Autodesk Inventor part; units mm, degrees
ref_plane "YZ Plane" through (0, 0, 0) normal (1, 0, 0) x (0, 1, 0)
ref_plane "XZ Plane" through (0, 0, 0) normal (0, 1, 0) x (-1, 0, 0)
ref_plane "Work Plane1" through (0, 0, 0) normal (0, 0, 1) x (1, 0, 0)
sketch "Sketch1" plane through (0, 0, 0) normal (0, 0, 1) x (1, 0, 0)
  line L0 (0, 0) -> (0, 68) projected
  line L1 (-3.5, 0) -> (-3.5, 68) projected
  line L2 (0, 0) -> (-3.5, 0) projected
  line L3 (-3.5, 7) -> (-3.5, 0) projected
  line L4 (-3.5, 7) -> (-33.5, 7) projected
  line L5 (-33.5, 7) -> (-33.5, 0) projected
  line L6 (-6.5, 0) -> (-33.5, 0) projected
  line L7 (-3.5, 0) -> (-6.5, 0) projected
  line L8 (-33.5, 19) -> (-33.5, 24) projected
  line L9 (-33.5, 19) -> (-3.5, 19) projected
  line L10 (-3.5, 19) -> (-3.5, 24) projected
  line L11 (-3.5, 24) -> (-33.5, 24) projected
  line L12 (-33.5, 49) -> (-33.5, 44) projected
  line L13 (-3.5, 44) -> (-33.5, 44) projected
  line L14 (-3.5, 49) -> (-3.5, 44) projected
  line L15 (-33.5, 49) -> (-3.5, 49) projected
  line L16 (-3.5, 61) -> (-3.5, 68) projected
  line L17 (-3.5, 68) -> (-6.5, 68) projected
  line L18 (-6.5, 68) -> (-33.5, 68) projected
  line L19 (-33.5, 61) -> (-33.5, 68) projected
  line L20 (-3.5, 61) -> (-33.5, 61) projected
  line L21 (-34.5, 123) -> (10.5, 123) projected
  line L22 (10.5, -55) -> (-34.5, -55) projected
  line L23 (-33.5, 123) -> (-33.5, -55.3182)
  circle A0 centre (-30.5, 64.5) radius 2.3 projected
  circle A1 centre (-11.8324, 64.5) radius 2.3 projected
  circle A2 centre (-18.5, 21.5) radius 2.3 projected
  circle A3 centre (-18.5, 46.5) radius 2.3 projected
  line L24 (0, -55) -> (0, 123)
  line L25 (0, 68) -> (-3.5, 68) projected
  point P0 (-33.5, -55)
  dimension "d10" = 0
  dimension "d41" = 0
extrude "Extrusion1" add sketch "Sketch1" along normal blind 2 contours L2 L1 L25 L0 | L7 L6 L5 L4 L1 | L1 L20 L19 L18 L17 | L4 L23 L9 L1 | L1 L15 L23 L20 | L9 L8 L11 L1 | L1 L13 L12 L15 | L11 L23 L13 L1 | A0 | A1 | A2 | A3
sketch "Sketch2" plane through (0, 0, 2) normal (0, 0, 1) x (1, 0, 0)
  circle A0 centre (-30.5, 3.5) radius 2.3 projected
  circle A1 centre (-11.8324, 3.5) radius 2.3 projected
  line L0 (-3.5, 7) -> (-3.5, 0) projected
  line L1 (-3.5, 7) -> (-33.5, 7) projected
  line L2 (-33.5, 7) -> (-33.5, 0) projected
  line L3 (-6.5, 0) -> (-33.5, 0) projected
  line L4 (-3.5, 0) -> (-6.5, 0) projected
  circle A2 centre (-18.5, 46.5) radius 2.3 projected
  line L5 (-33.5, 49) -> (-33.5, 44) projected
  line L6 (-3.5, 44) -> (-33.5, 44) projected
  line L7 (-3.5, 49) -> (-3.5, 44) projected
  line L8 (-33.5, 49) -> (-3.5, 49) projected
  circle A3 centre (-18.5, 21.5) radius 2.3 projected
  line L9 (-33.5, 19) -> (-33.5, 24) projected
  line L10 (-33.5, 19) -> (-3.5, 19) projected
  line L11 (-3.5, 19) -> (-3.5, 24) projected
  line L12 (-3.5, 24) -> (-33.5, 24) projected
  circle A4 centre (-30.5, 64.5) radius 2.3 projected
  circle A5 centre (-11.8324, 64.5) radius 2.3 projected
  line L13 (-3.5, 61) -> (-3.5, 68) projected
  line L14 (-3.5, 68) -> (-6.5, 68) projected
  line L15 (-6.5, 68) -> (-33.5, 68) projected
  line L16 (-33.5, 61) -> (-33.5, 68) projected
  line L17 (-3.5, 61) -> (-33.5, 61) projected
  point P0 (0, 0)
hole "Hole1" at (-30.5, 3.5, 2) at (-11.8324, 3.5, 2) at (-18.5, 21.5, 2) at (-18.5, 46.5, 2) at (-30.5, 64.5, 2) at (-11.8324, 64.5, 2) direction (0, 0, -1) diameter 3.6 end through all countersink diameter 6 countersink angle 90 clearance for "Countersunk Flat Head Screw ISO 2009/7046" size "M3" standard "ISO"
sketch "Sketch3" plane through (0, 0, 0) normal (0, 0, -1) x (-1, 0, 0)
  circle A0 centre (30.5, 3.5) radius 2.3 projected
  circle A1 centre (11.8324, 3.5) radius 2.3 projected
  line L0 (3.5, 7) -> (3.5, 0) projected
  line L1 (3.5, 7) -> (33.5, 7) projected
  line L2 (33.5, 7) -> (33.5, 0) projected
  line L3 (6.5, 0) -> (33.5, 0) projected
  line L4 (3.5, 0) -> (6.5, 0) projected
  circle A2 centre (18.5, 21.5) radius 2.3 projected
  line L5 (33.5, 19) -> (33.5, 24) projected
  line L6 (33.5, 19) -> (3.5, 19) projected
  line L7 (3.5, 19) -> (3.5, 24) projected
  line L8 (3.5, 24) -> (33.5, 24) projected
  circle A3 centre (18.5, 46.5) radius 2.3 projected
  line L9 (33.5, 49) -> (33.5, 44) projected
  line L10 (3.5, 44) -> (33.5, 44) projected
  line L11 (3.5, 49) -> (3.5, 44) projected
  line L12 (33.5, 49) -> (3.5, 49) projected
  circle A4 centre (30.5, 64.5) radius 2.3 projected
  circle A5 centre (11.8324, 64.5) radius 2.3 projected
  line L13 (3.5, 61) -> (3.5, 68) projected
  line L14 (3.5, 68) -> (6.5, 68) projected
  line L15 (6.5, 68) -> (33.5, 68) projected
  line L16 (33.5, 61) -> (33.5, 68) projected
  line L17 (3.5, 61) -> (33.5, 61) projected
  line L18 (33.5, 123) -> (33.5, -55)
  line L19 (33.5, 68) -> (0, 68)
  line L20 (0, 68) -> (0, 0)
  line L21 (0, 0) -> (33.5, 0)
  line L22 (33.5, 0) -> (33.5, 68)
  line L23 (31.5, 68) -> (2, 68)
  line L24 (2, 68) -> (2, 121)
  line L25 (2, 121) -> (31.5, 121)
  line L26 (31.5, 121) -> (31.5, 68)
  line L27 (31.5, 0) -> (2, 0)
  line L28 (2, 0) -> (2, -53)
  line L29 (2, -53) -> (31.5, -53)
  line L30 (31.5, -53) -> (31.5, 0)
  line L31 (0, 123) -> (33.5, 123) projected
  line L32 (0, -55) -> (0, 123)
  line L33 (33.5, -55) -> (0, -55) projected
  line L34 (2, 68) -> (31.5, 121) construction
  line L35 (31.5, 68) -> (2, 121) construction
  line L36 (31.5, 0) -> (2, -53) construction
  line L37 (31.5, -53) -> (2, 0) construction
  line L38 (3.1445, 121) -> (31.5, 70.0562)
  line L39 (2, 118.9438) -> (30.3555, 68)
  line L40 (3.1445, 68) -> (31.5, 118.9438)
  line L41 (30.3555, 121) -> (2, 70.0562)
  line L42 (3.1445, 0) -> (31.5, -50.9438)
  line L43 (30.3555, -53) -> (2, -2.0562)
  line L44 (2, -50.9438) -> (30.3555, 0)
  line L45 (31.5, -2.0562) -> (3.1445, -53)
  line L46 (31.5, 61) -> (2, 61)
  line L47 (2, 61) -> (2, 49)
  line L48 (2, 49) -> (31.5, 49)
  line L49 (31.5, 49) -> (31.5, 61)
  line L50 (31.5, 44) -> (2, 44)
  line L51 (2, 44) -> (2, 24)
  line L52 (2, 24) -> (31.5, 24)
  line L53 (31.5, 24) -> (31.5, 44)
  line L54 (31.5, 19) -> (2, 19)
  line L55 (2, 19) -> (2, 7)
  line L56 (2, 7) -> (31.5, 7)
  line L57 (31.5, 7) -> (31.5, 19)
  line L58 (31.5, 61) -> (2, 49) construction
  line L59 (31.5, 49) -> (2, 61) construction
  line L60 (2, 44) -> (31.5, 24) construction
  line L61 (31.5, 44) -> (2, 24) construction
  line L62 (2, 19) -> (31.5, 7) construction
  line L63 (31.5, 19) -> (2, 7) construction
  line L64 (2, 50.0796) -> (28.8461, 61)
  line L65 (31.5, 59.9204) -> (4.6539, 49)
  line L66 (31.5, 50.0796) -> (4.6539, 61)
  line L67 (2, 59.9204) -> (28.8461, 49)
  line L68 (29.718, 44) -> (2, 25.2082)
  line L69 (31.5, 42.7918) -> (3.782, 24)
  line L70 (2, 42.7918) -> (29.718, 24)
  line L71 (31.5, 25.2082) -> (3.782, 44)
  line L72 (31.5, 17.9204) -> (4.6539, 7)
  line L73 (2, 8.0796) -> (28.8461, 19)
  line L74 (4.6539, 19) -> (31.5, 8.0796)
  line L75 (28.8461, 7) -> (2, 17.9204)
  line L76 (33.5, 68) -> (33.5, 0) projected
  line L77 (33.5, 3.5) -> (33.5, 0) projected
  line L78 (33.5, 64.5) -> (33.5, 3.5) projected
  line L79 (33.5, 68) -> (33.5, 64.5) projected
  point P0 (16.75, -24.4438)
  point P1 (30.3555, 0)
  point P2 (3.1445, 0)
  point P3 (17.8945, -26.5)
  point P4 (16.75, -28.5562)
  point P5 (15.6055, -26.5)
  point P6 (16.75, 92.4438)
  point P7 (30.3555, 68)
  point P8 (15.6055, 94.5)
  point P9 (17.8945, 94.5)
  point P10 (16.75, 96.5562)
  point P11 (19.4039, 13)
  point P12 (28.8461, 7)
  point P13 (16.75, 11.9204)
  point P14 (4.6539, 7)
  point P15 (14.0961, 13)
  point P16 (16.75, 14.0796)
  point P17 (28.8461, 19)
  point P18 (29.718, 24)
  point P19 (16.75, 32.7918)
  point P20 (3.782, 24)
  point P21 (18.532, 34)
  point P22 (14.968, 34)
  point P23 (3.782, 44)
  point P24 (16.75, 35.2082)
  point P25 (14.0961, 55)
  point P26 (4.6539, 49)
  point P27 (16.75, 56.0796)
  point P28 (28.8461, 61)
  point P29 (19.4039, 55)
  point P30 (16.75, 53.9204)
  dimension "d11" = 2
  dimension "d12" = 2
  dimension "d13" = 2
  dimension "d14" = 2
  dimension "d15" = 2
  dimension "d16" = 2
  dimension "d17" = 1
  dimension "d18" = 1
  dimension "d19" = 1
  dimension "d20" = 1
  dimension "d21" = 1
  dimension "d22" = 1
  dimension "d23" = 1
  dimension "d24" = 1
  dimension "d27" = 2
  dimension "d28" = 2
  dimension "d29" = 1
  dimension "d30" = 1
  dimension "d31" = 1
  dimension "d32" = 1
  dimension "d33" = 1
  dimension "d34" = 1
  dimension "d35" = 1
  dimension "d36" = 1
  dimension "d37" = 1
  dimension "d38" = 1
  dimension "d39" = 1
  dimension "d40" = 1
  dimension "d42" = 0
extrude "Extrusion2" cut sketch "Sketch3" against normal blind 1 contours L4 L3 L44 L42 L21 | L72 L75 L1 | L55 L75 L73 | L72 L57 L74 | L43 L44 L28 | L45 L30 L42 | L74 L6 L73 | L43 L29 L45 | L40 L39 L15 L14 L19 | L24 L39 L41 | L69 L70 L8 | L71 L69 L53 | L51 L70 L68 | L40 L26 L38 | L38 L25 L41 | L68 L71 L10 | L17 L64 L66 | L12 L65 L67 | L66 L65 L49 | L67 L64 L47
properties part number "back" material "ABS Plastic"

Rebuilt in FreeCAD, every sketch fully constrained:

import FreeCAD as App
import Part
import Sketcher

V = App.Vector
Q = App.Units.Quantity

doc = App.newDocument("Part")
body = doc.addObject("PartDesign::Body", "Body")

# Sketch on XY plane
sketch1 = body.newObject("Sketcher::SketchObject", "Sketch")
sketch1.AttachmentSupport = (doc.getObject("XY_Plane"), [""])
sketch1.MapMode = "FlatFace"
sketch1.addGeometry([
    Part.LineSegment(V(0, 0, 0), V(0, 68, 0)),
    Part.LineSegment(V(0, 68, 0), V(-34, 68, 0)),
    Part.LineSegment(V(-34, 68, 0), V(-34, 0, 0)),
    Part.LineSegment(V(-34, 0, 0), V(0, 0, 0)),
], False)
sketch1.addConstraint([
    Sketcher.Constraint("Coincident", 0, 2, 1, 1),
    Sketcher.Constraint("Coincident", 1, 2, 2, 1),
    Sketcher.Constraint("Coincident", 2, 2, 3, 1),
    Sketcher.Constraint("Coincident", 3, 2, 0, 1),
    Sketcher.Constraint("Vertical", 0),
    Sketcher.Constraint("Horizontal", 1),
    Sketcher.Constraint("Vertical", 2),
    Sketcher.Constraint("Horizontal", 3),
    Sketcher.Constraint("Coincident", 3, 2, -1, 1),
    Sketcher.Constraint("DistanceY", 0, 1, 0, 2, Q("68 mm")),
    Sketcher.Constraint("DistanceX", 1, 2, 1, 1, Q("33.5 mm")),
])
pad1 = body.newObject("PartDesign::Pad", "Pad")
pad1.Profile = sketch1
pad1.Length = 2

# Sketch on XY plane
sketch2 = body.newObject("Sketcher::SketchObject", "Sketch001")
sketch2.AttachmentSupport = (doc.getObject("XY_Plane"), [""])
sketch2.MapMode = "FlatFace"
sketch2.AttachmentOffset = App.Placement(V(0, 0, 2), App.Rotation())
sketch2.addGeometry([
    Part.Circle(V(-30.5, 3.5, 0), V(0, 0, 1), 1.8),  # 0
    Part.Circle(V(-11.8, 3.5, 0), V(0, 0, 1), 1.8),  # 1
    Part.Circle(V(-18.5, 21.5, 0), V(0, 0, 1), 1.8),  # 2
    Part.Circle(V(-18.5, 46.5, 0), V(0, 0, 1), 1.8),  # 3
    Part.Circle(V(-30.5, 64.5, 0), V(0, 0, 1), 1.8),  # 4
    Part.Circle(V(-11.8, 64.5, 0), V(0, 0, 1), 1.8),  # 5
], False)
sketch2.addConstraint([
    Sketcher.Constraint("Equal", 0, 1),
    Sketcher.Constraint("Equal", 1, 2),
    Sketcher.Constraint("Equal", 2, 3),
    Sketcher.Constraint("Equal", 3, 4),
    Sketcher.Constraint("Equal", 4, 5),
    Sketcher.Constraint("Horizontal", 0, 3, 1, 3),
    Sketcher.Constraint("Horizontal", 4, 3, 5, 3),
    Sketcher.Constraint("Vertical", 2, 3, 3, 3),
    Sketcher.Constraint("Vertical", 0, 3, 4, 3),
    Sketcher.Constraint("Vertical", 1, 3, 5, 3),
    Sketcher.Constraint("Diameter", 0, Q("3.6 mm")),
    Sketcher.Constraint("DistanceY", 1, 3, 2, 3, Q("18 mm")),
    Sketcher.Constraint("DistanceX", 0, 3, 2, 3, Q("12 mm")),
    Sketcher.Constraint("DistanceY", 2, 3, 3, 3, Q("25 mm")),
    Sketcher.Constraint("DistanceY", 3, 3, 4, 3, Q("18 mm")),
    Sketcher.Constraint("DistanceX", 0, 3, -1, 1, Q("30.5 mm")),
    Sketcher.Constraint("DistanceY", -1, 1, 0, 3, Q("3.5 mm")),
    Sketcher.Constraint("DistanceX", 1, 3, -1, 1, Q("11.8324 mm")),
])
doc.recompute()
hole = body.newObject("PartDesign::Hole", "Hole")
hole.Profile = sketch2
hole.ThreadType = "None"
hole.Diameter = 3.6
hole.DepthType = "ThroughAll"
hole.HoleCutType = "Countersink"
hole.HoleCutDiameter = 6
hole.HoleCutCountersinkAngle = 90

# Sketch on XY plane
sketch3 = body.newObject("Sketcher::SketchObject", "Sketch002")
sketch3.AttachmentSupport = (doc.getObject("XY_Plane"), [""])
sketch3.MapMode = "FlatFace"
sketch3.addGeometry([
    Part.LineSegment(V(-30, 0, 0), V(-3, 0, 0)),  # 0
    Part.LineSegment(V(-3, 0, 0), V(-17, -24, 0)),  # 1
    Part.LineSegment(V(-17, -24, 0), V(-30, 0, 0)),  # 2
    Part.LineSegment(V(-17, 12, 0), V(-5, 7, 0)),  # 3
    Part.LineSegment(V(-5, 7, 0), V(-29, 7, 0)),  # 4
    Part.LineSegment(V(-29, 7, 0), V(-17, 12, 0)),  # 5
    Part.LineSegment(V(-2, 18, 0), V(-2, 8, 0)),  # 6
    Part.LineSegment(V(-2, 8, 0), V(-14, 13, 0)),  # 7
    Part.LineSegment(V(-14, 13, 0), V(-2, 18, 0)),  # 8
    Part.LineSegment(V(-32, 18, 0), V(-19, 13, 0)),  # 9
    Part.LineSegment(V(-19, 13, 0), V(-32, 8, 0)),  # 10
    Part.LineSegment(V(-32, 8, 0), V(-32, 18, 0)),  # 11
    Part.LineSegment(V(-16, -26, 0), V(-2, -2, 0)),  # 12
    Part.LineSegment(V(-2, -2, 0), V(-2, -51, 0)),  # 13
    Part.LineSegment(V(-2, -51, 0), V(-16, -26, 0)),  # 14
    Part.LineSegment(V(-32, -2, 0), V(-18, -26, 0)),  # 15
    Part.LineSegment(V(-18, -26, 0), V(-32, -51, 0)),  # 16
    Part.LineSegment(V(-32, -51, 0), V(-32, -2, 0)),  # 17
    Part.LineSegment(V(-5, 19, 0), V(-17, 14, 0)),  # 18
    Part.LineSegment(V(-17, 14, 0), V(-29, 19, 0)),  # 19
    Part.LineSegment(V(-29, 19, 0), V(-5, 19, 0)),  # 20
    Part.LineSegment(V(-30, -53, 0), V(-17, -29, 0)),  # 21
    Part.LineSegment(V(-17, -29, 0), V(-3, -53, 0)),  # 22
    Part.LineSegment(V(-3, -53, 0), V(-30, -53, 0)),  # 23
    Part.LineSegment(V(-17, 92, 0), V(-3, 68, 0)),  # 24
    Part.LineSegment(V(-3, 68, 0), V(-30, 68, 0)),  # 25
    Part.LineSegment(V(-30, 68, 0), V(-17, 92, 0)),  # 26
    Part.LineSegment(V(-2, 119, 0), V(-2, 70, 0)),  # 27
    Part.LineSegment(V(-2, 70, 0), V(-16, 94, 0)),  # 28
    Part.LineSegment(V(-16, 94, 0), V(-2, 119, 0)),  # 29
    Part.LineSegment(V(-17, 33, 0), V(-4, 24, 0)),  # 30
    Part.LineSegment(V(-4, 24, 0), V(-30, 24, 0)),  # 31
    Part.LineSegment(V(-30, 24, 0), V(-17, 33, 0)),  # 32
    Part.LineSegment(V(-19, 34, 0), V(-32, 25, 0)),  # 33
    Part.LineSegment(V(-32, 25, 0), V(-32, 43, 0)),  # 34
    Part.LineSegment(V(-32, 43, 0), V(-19, 34, 0)),  # 35
    Part.LineSegment(V(-2, 43, 0), V(-2, 25, 0)),  # 36
    Part.LineSegment(V(-2, 25, 0), V(-15, 34, 0)),  # 37
    Part.LineSegment(V(-15, 34, 0), V(-2, 43, 0)),  # 38
    Part.LineSegment(V(-32, 119, 0), V(-18, 94, 0)),  # 39
    Part.LineSegment(V(-18, 94, 0), V(-32, 70, 0)),  # 40
    Part.LineSegment(V(-32, 70, 0), V(-32, 119, 0)),  # 41
    Part.LineSegment(V(-3, 121, 0), V(-17, 97, 0)),  # 42
    Part.LineSegment(V(-17, 97, 0), V(-30, 121, 0)),  # 43
    Part.LineSegment(V(-30, 121, 0), V(-3, 121, 0)),  # 44
    Part.LineSegment(V(-17, 35, 0), V(-30, 44, 0)),  # 45
    Part.LineSegment(V(-30, 44, 0), V(-4, 44, 0)),  # 46
    Part.LineSegment(V(-4, 44, 0), V(-17, 35, 0)),  # 47
    Part.LineSegment(V(-29, 61, 0), V(-5, 61, 0)),  # 48
    Part.LineSegment(V(-5, 61, 0), V(-17, 56, 0)),  # 49
    Part.LineSegment(V(-17, 56, 0), V(-29, 61, 0)),  # 50
    Part.LineSegment(V(-5, 49, 0), V(-29, 49, 0)),  # 51
    Part.LineSegment(V(-29, 49, 0), V(-17, 54, 0)),  # 52
    Part.LineSegment(V(-17, 54, 0), V(-5, 49, 0)),  # 53
    Part.LineSegment(V(-19, 55, 0), V(-32, 50, 0)),  # 54
    Part.LineSegment(V(-32, 50, 0), V(-32, 60, 0)),  # 55
    Part.LineSegment(V(-32, 60, 0), V(-19, 55, 0)),  # 56
    Part.LineSegment(V(-14, 55, 0), V(-2, 60, 0)),  # 57
    Part.LineSegment(V(-2, 60, 0), V(-2, 50, 0)),  # 58
    Part.LineSegment(V(-2, 50, 0), V(-14, 55, 0)),  # 59
], False)
sketch3.addConstraint([
    Sketcher.Constraint("Coincident", 0, 2, 1, 1),
    Sketcher.Constraint("Coincident", 1, 2, 2, 1),
    Sketcher.Constraint("Coincident", 2, 2, 0, 1),
    Sketcher.Constraint("Coincident", 3, 2, 4, 1),
    Sketcher.Constraint("Coincident", 4, 2, 5, 1),
    Sketcher.Constraint("Coincident", 5, 2, 3, 1),
    Sketcher.Constraint("Coincident", 6, 2, 7, 1),
    Sketcher.Constraint("Coincident", 7, 2, 8, 1),
    Sketcher.Constraint("Coincident", 8, 2, 6, 1),
    Sketcher.Constraint("Coincident", 9, 2, 10, 1),
    Sketcher.Constraint("Coincident", 10, 2, 11, 1),
    Sketcher.Constraint("Coincident", 11, 2, 9, 1),
    Sketcher.Constraint("Coincident", 12, 2, 13, 1),
    Sketcher.Constraint("Coincident", 13, 2, 14, 1),
    Sketcher.Constraint("Coincident", 14, 2, 12, 1),
    Sketcher.Constraint("Coincident", 15, 2, 16, 1),
    Sketcher.Constraint("Coincident", 16, 2, 17, 1),
    Sketcher.Constraint("Coincident", 17, 2, 15, 1),
    Sketcher.Constraint("Coincident", 18, 2, 19, 1),
    Sketcher.Constraint("Coincident", 19, 2, 20, 1),
    Sketcher.Constraint("Coincident", 20, 2, 18, 1),
    Sketcher.Constraint("Coincident", 21, 2, 22, 1),
    Sketcher.Constraint("Coincident", 22, 2, 23, 1),
    Sketcher.Constraint("Coincident", 23, 2, 21, 1),
    Sketcher.Constraint("Coincident", 24, 2, 25, 1),
    Sketcher.Constraint("Coincident", 25, 2, 26, 1),
    Sketcher.Constraint("Coincident", 26, 2, 24, 1),
    Sketcher.Constraint("Coincident", 27, 2, 28, 1),
    Sketcher.Constraint("Coincident", 28, 2, 29, 1),
    Sketcher.Constraint("Coincident", 29, 2, 27, 1),
    Sketcher.Constraint("Coincident", 30, 2, 31, 1),
    Sketcher.Constraint("Coincident", 31, 2, 32, 1),
    Sketcher.Constraint("Coincident", 32, 2, 30, 1),
    Sketcher.Constraint("Coincident", 33, 2, 34, 1),
    Sketcher.Constraint("Coincident", 34, 2, 35, 1),
    Sketcher.Constraint("Coincident", 35, 2, 33, 1),
    Sketcher.Constraint("Coincident", 36, 2, 37, 1),
    Sketcher.Constraint("Coincident", 37, 2, 38, 1),
    Sketcher.Constraint("Coincident", 38, 2, 36, 1),
    Sketcher.Constraint("Coincident", 39, 2, 40, 1),
    Sketcher.Constraint("Coincident", 40, 2, 41, 1),
    Sketcher.Constraint("Coincident", 41, 2, 39, 1),
    Sketcher.Constraint("Coincident", 42, 2, 43, 1),
    Sketcher.Constraint("Coincident", 43, 2, 44, 1),
    Sketcher.Constraint("Coincident", 44, 2, 42, 1),
    Sketcher.Constraint("Coincident", 45, 2, 46, 1),
    Sketcher.Constraint("Coincident", 46, 2, 47, 1),
    Sketcher.Constraint("Coincident", 47, 2, 45, 1),
    Sketcher.Constraint("Coincident", 48, 2, 49, 1),
    Sketcher.Constraint("Coincident", 49, 2, 50, 1),
    Sketcher.Constraint("Coincident", 50, 2, 48, 1),
    Sketcher.Constraint("Coincident", 51, 2, 52, 1),
    Sketcher.Constraint("Coincident", 52, 2, 53, 1),
    Sketcher.Constraint("Coincident", 53, 2, 51, 1),
    Sketcher.Constraint("Coincident", 54, 2, 55, 1),
    Sketcher.Constraint("Coincident", 55, 2, 56, 1),
    Sketcher.Constraint("Coincident", 56, 2, 54, 1),
    Sketcher.Constraint("Coincident", 57, 2, 58, 1),
    Sketcher.Constraint("Coincident", 58, 2, 59, 1),
    Sketcher.Constraint("Coincident", 59, 2, 57, 1),
    Sketcher.Constraint("Horizontal", 0),
    Sketcher.Constraint("Horizontal", 4),
    Sketcher.Constraint("Vertical", 6),
    Sketcher.Constraint("Vertical", 11),
    Sketcher.Constraint("Vertical", 13),
    Sketcher.Constraint("Vertical", 17),
    Sketcher.Constraint("Horizontal", 20),
    Sketcher.Constraint("Horizontal", 23),
    Sketcher.Constraint("Horizontal", 25),
    Sketcher.Constraint("Vertical", 27),
    Sketcher.Constraint("Horizontal", 31),
    Sketcher.Constraint("Vertical", 34),
    Sketcher.Constraint("Vertical", 36),
    Sketcher.Constraint("Vertical", 41),
    Sketcher.Constraint("Horizontal", 44),
    Sketcher.Constraint("Horizontal", 46),
    Sketcher.Constraint("Horizontal", 48),
    Sketcher.Constraint("Horizontal", 51),
    Sketcher.Constraint("Vertical", 55),
    Sketcher.Constraint("Vertical", 58),
    Sketcher.Constraint("PointOnObject", 0, 2, -1),
    Sketcher.Constraint("Parallel", 3, 7),
    Sketcher.Constraint("Parallel", 5, 8),
    Sketcher.Constraint("Parallel", 7, 9),
    Sketcher.Constraint("Parallel", 8, 10),
    Sketcher.Constraint("Parallel", 1, 12),
    Sketcher.Constraint("Parallel", 2, 14),
    Sketcher.Constraint("Parallel", 14, 15),
    Sketcher.Constraint("Parallel", 12, 16),
    Sketcher.Constraint("Parallel", 10, 18),
    Sketcher.Constraint("Parallel", 9, 19),
    Sketcher.Constraint("Parallel", 16, 21),
    Sketcher.Constraint("Parallel", 15, 22),
    Sketcher.Constraint("Parallel", 22, 24),
    Sketcher.Constraint("Parallel", 21, 26),
    Sketcher.Constraint("Parallel", 24, 28),
    Sketcher.Constraint("Parallel", 26, 29),
    Sketcher.Constraint("Parallel", 32, 33),
    Sketcher.Constraint("Parallel", 30, 35),
    Sketcher.Constraint("Parallel", 35, 37),
    Sketcher.Constraint("Parallel", 33, 38),
    Sketcher.Constraint("Parallel", 28, 39),
    Sketcher.Constraint("Parallel", 29, 40),
    Sketcher.Constraint("Parallel", 40, 42),
    Sketcher.Constraint("Parallel", 39, 43),
    Sketcher.Constraint("Parallel", 37, 45),
    Sketcher.Constraint("Parallel", 38, 47),
    Sketcher.Constraint("Parallel", 18, 49),
    Sketcher.Constraint("Parallel", 19, 50),
    Sketcher.Constraint("Parallel", 49, 52),
    Sketcher.Constraint("Parallel", 50, 53),
    Sketcher.Constraint("Parallel", 52, 54),
    Sketcher.Constraint("Parallel", 53, 56),
    Sketcher.Constraint("Parallel", 54, 57),
    Sketcher.Constraint("Parallel", 56, 59),
    Sketcher.Constraint("Horizontal", 7, 2, 9, 2),
    Sketcher.Constraint("Horizontal", 6, 2, 10, 2),
    Sketcher.Constraint("Horizontal", 8, 2, 11, 2),
    Sketcher.Constraint("Horizontal", 14, 2, 15, 2),
    Sketcher.Constraint("Horizontal", 13, 2, 16, 2),
    Sketcher.Constraint("Horizontal", 12, 2, 17, 2),
    Sketcher.Constraint("Horizontal", 33, 2, 36, 2),
    Sketcher.Constraint("Horizontal", 35, 2, 37, 2),
    Sketcher.Constraint("Horizontal", 34, 2, 38, 2),
    Sketcher.Constraint("Horizontal", 28, 2, 39, 2),
    Sketcher.Constraint("Horizontal", 27, 2, 40, 2),
    Sketcher.Constraint("Horizontal", 55, 2, 57, 2),
    Sketcher.Constraint("Horizontal", 54, 2, 58, 2),
    Sketcher.Constraint("Vertical", 1, 2, 5, 2),
    Sketcher.Constraint("Vertical", 8, 2, 12, 2),
    Sketcher.Constraint("Vertical", 11, 2, 16, 2),
    Sketcher.Constraint("Vertical", 5, 2, 18, 2),
    Sketcher.Constraint("Vertical", 4, 2, 19, 2),
    Sketcher.Constraint("Vertical", 18, 2, 21, 2),
    Sketcher.Constraint("Vertical", 0, 2, 22, 2),
    Sketcher.Constraint("Vertical", 22, 2, 24, 2),
    Sketcher.Constraint("Vertical", 23, 2, 25, 2),
    Sketcher.Constraint("Vertical", 13, 2, 27, 2),
    Sketcher.Constraint("Vertical", 14, 2, 28, 2),
    Sketcher.Constraint("Vertical", 26, 2, 32, 2),
    Sketcher.Constraint("Vertical", 17, 2, 33, 2),
    Sketcher.Constraint("Vertical", 29, 2, 36, 2),
    Sketcher.Constraint("Vertical", 15, 2, 39, 2),
    Sketcher.Constraint("Vertical", 32, 2, 42, 2),
    Sketcher.Constraint("Vertical", 25, 2, 43, 2),
    Sketcher.Constraint("Vertical", 31, 2, 45, 2),
    Sketcher.Constraint("Vertical", 30, 2, 46, 2),
    Sketcher.Constraint("Vertical", 20, 2, 48, 2),
    Sketcher.Constraint("Vertical", 47, 2, 49, 2),
    Sketcher.Constraint("Vertical", 50, 2, 51, 2),
    Sketcher.Constraint("Vertical", 49, 2, 52, 2),
    Sketcher.Constraint("Vertical", 41, 2, 54, 2),
    Sketcher.Constraint("Vertical", 9, 2, 56, 2),
    Sketcher.Constraint("Vertical", 38, 2, 57, 2),
    Sketcher.Constraint("Equal", 5, 7),
    Sketcher.Constraint("Equal", 2, 12),
    Sketcher.Constraint("Equal", 32, 33),
    Sketcher.Constraint("DistanceX", 6, 2, -1, 1, Q("2 mm")),
    Sketcher.Constraint("DistanceY", -1, 1, 3, 2, Q("7 mm")),
    Sketcher.Constraint("DistanceY", -1, 1, 7, 2, Q("13 mm")),
    Sketcher.Constraint("DistanceY", -1, 1, 19, 2, Q("19 mm")),
    Sketcher.Constraint("DistanceY", 22, 2, -1, 1, Q("53 mm")),
    Sketcher.Constraint("DistanceY", -1, 1, 24, 2, Q("68 mm")),
    Sketcher.Constraint("DistanceY", -1, 1, 30, 2, Q("24 mm")),
    Sketcher.Constraint("DistanceY", -1, 1, 35, 2, Q("34 mm")),
    Sketcher.Constraint("DistanceY", -1, 1, 43, 2, Q("121 mm")),
    Sketcher.Constraint("DistanceY", -1, 1, 45, 2, Q("44 mm")),
    Sketcher.Constraint("DistanceY", -1, 1, 48, 2, Q("61 mm")),
    Sketcher.Constraint("DistanceY", -1, 1, 51, 2, Q("49 mm")),
    Sketcher.Constraint("DistanceY", -1, 1, 56, 2, Q("55 mm")),
    Sketcher.Constraint("Angle", 1, Q("-119.1005 deg")),
    Sketcher.Constraint("DistanceX", 10, 2, -1, 1, Q("31.5 mm")),
    Sketcher.Constraint("DistanceY", 14, 2, -1, 1, Q("26.5 mm")),
    Sketcher.Constraint("DistanceY", -1, 1, 28, 2, Q("94.5 mm")),
    Sketcher.Constraint("DistanceX", 0, 1, 0, 2, Q("27.211 mm")),
    Sketcher.Constraint("DistanceX", 31, 2, 31, 1, Q("25.936 mm")),
    Sketcher.Constraint("DistanceX", 1, 2, -1, 1, Q("16.75 mm")),
    Sketcher.Constraint("DistanceX", 4, 2, 4, 1, Q("24.1922 mm")),
    Sketcher.Constraint("DistanceY", 6, 2, 6, 1, Q("9.8408 mm")),
    Sketcher.Constraint("DistanceY", 34, 1, 34, 2, Q("17.5836 mm")),
])
pocket1 = body.newObject("PartDesign::Pocket", "Pocket")
pocket1.Profile = sketch3
pocket1.Length = 1
pocket1.Reversed = True

doc.recompute()
